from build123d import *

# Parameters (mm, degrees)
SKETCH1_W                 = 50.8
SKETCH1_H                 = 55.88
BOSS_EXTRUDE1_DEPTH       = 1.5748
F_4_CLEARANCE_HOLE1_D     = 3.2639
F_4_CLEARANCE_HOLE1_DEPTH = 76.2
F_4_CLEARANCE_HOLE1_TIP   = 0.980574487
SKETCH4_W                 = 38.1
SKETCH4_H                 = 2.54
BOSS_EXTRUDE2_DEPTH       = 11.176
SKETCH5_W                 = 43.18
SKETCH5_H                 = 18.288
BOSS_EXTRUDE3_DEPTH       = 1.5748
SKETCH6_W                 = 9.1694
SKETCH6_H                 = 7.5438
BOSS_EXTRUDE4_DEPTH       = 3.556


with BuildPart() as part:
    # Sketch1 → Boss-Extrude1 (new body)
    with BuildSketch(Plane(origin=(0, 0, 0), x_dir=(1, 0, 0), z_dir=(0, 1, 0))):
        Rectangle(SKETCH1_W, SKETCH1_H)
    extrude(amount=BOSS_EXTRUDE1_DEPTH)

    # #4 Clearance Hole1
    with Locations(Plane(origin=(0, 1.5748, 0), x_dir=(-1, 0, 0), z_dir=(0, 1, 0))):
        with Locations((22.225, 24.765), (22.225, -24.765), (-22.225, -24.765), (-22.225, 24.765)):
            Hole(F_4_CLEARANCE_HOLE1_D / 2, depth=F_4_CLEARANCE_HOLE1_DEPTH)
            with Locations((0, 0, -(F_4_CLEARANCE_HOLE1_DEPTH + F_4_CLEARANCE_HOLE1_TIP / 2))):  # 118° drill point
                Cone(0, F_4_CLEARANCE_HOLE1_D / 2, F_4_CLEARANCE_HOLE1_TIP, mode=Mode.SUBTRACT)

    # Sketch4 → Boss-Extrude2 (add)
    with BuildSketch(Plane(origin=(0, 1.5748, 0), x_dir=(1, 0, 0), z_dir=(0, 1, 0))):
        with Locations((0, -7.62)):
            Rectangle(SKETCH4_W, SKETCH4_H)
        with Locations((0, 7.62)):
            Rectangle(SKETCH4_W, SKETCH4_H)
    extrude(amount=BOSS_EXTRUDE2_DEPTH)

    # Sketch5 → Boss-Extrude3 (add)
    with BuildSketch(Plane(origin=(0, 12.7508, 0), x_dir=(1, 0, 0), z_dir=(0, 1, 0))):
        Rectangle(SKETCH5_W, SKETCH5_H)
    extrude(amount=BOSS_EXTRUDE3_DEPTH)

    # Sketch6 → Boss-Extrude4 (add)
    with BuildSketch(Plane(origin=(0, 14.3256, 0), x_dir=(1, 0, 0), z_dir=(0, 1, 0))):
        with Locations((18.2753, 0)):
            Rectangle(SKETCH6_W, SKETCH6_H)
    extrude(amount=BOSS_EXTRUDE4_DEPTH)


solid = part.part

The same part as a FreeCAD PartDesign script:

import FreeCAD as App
import Part
import Sketcher
from FreeCAD import Vector
Q = App.Units.Quantity


def add_polygon(sketch, points):
    """Adds a closed chain of lines whose ends are joined by coincident constraints."""
    first, n = sketch.GeometryCount, len(points)
    for a, b in zip(points, points[1:] + points[:1]):
        sketch.addGeometry(Part.LineSegment(App.Vector(*a, 0), App.Vector(*b, 0)), False)
    for i in range(n):
        sketch.addConstraint(Sketcher.Constraint("Coincident", first + i, 2, first + (i + 1) % n, 1))

doc = App.newDocument("Part")
body = doc.addObject("PartDesign::Body", "Body")

# Sketch on XZ plane
sketch1 = doc.addObject("Sketcher::SketchObject", "Sketch")
body.addObject(sketch1)
sketch1.AttachmentSupport = (doc.XZ_Plane, [""])
sketch1.MapMode = "FlatFace"
add_polygon(sketch1, [(-25.4, -27.94), (-25.4, 27.94), (25.4, 27.94), (25.4, -27.94)])  # lines 0-3
sketch1.addConstraint([
    Sketcher.Constraint("Vertical", 0),
    Sketcher.Constraint("Horizontal", 1),
    Sketcher.Constraint("Vertical", 2),
    Sketcher.Constraint("Horizontal", 3),
    Sketcher.Constraint("Symmetric", 0, 2, 2, 2, -1, 1),
    Sketcher.Constraint("DistanceX", 1, 1, 1, 2, Q("2 in")),
    Sketcher.Constraint("DistanceY", 0, 1, 0, 2, Q("2.2 in")),
])
pad1 = doc.addObject("PartDesign::Pad", "Pad")
body.addObject(pad1)
pad1.Profile = sketch1
pad1.Length = Q("0.062 in")
pad1.Reversed = True

# Sketch on XZ plane
sketch2 = doc.addObject("Sketcher::SketchObject", "Sketch001")
body.addObject(sketch2)
sketch2.AttachmentSupport = (doc.XZ_Plane, [""])
sketch2.MapMode = "FlatFace"
sketch2.AttachmentOffset = App.Placement(Vector(0, 0, -0.062 * 25.4), App.Rotation())
sketch2.addGeometry([
    Part.Circle(Vector(-22.225, 24.765, 0), Vector(0, 0, 1), 1.63195),
    Part.Circle(Vector(-22.225, -24.765, 0), Vector(0, 0, 1), 1.63195),
    Part.Circle(Vector(22.225, -24.765, 0), Vector(0, 0, 1), 1.63195),
    Part.Circle(Vector(22.225, 24.765, 0), Vector(0, 0, 1), 1.63195),
], False)
sketch2.addConstraint([
    Sketcher.Constraint("Equal", 0, 1),
    Sketcher.Constraint("Equal", 1, 2),
    Sketcher.Constraint("Equal", 2, 3),
    Sketcher.Constraint("Symmetric", 0, 3, 2, 3, -1, 1),
    Sketcher.Constraint("Symmetric", 1, 3, 3, 3, -1, 1),
    Sketcher.Constraint("Symmetric", 1, 3, 2, 3, -2),
    Sketcher.Constraint("Diameter", 0, Q("0.1285 in")),
    Sketcher.Constraint("DistanceY", 1, 3, 0, 3, Q("1.95 in")),
    Sketcher.Constraint("DistanceX", 1, 3, 2, 3, Q("1.75 in")),
])
doc.recompute()
hole = doc.addObject("PartDesign::Hole", "Hole")
body.addObject(hole)
hole.Profile = sketch2
hole.ThreadType = "None"
hole.Diameter = Q("0.1285 in")
hole.DepthType = "Dimension"
hole.Depth = Q("3 in")
hole.DrillPoint = "Angled"
hole.DrillPointAngle = 118
hole.Reversed = True

# Sketch on XZ plane
sketch3 = doc.addObject("Sketcher::SketchObject", "Sketch002")
body.addObject(sketch3)
sketch3.AttachmentSupport = (doc.XZ_Plane, [""])
sketch3.MapMode = "FlatFace"
sketch3.AttachmentOffset = App.Placement(Vector(0, 0, -0.062 * 25.4), App.Rotation())
add_polygon(sketch3, [(-19.05, 6.35), (-19.05, 8.89), (19.05, 8.89), (19.05, 6.35)])  # lines 0-3
add_polygon(sketch3, [(-19.05, -8.89), (-19.05, -6.35), (19.05, -6.35), (19.05, -8.89)])  # lines 4-7
sketch3.addConstraint([
    Sketcher.Constraint("Vertical", 0),
    Sketcher.Constraint("Horizontal", 1),
    Sketcher.Constraint("Vertical", 2),
    Sketcher.Constraint("Horizontal", 3),
    Sketcher.Constraint("Vertical", 4),
    Sketcher.Constraint("Horizontal", 5),
    Sketcher.Constraint("Vertical", 6),
    Sketcher.Constraint("Horizontal", 7),
    Sketcher.Constraint("Symmetric", 2, 2, 4, 2, -1, 1),
    Sketcher.Constraint("Symmetric", 0, 2, 6, 2, -1, 1),
    Sketcher.Constraint("Vertical", 3, 2, 4, 2),
    Sketcher.Constraint("DistanceX", 1, 1, 1, 2, Q("1.5 in")),
    Sketcher.Constraint("DistanceY", 0, 1, 0, 2, Q("0.1 in")),
    Sketcher.Constraint("DistanceY", 4, 2, 3, 2, Q("0.5 in")),
])
pad2 = doc.addObject("PartDesign::Pad", "Pad001")
body.addObject(pad2)
pad2.Profile = sketch3
pad2.Length = Q("0.44 in")
pad2.Reversed = True

# Sketch on XZ plane
sketch4 = doc.addObject("Sketcher::SketchObject", "Sketch003")
body.addObject(sketch4)
sketch4.AttachmentSupport = (doc.XZ_Plane, [""])
sketch4.MapMode = "FlatFace"
sketch4.AttachmentOffset = App.Placement(Vector(0, 0, -0.502 * 25.4), App.Rotation())
add_polygon(sketch4, [(-21.59, -9.144), (-21.59, 9.144), (21.59, 9.144), (21.59, -9.144)])  # lines 0-3
sketch4.addConstraint([
    Sketcher.Constraint("Vertical", 0),
    Sketcher.Constraint("Horizontal", 1),
    Sketcher.Constraint("Vertical", 2),
    Sketcher.Constraint("Horizontal", 3),
    Sketcher.Constraint("Symmetric", 0, 2, 2, 2, -1, 1),
    Sketcher.Constraint("DistanceX", 1, 1, 1, 2, Q("1.7 in")),
    Sketcher.Constraint("DistanceY", 0, 1, 0, 2, Q("0.72 in")),
])
pad3 = doc.addObject("PartDesign::Pad", "Pad002")
body.addObject(pad3)
pad3.Profile = sketch4
pad3.Length = Q("0.062 in")
pad3.Reversed = True

# Sketch on XZ plane
sketch5 = doc.addObject("Sketcher::SketchObject", "Sketch004")
body.addObject(sketch5)
sketch5.AttachmentSupport = (doc.XZ_Plane, [""])
sketch5.MapMode = "FlatFace"
sketch5.AttachmentOffset = App.Placement(Vector(0, 0, -0.564 * 25.4), App.Rotation())
add_polygon(sketch5, [(13.6906, -3.7719), (13.6906, 3.7719), (22.86, 3.7719), (22.86, -3.7719)])  # lines 0-3
sketch5.addConstraint([
    Sketcher.Constraint("Vertical", 0),
    Sketcher.Constraint("Horizontal", 1),
    Sketcher.Constraint("Vertical", 2),
    Sketcher.Constraint("Horizontal", 3),
    Sketcher.Constraint("DistanceX", -1, 1, 1, 2, Q("0.9 in")),
    Sketcher.Constraint("DistanceX", 1, 1, 1, 2, Q("0.361 in")),
    Sketcher.Constraint("DistanceY", 0, 1, 0, 2, Q("0.297 in")),
    Sketcher.Constraint("DistanceY", -1, 1, 0, 2, Q("0.1485 in")),
])
pad4 = doc.addObject("PartDesign::Pad", "Pad003")
body.addObject(pad4)
pad4.Profile = sketch5
pad4.Length = Q("0.14 in")
pad4.Reversed = True

doc.recompute()
